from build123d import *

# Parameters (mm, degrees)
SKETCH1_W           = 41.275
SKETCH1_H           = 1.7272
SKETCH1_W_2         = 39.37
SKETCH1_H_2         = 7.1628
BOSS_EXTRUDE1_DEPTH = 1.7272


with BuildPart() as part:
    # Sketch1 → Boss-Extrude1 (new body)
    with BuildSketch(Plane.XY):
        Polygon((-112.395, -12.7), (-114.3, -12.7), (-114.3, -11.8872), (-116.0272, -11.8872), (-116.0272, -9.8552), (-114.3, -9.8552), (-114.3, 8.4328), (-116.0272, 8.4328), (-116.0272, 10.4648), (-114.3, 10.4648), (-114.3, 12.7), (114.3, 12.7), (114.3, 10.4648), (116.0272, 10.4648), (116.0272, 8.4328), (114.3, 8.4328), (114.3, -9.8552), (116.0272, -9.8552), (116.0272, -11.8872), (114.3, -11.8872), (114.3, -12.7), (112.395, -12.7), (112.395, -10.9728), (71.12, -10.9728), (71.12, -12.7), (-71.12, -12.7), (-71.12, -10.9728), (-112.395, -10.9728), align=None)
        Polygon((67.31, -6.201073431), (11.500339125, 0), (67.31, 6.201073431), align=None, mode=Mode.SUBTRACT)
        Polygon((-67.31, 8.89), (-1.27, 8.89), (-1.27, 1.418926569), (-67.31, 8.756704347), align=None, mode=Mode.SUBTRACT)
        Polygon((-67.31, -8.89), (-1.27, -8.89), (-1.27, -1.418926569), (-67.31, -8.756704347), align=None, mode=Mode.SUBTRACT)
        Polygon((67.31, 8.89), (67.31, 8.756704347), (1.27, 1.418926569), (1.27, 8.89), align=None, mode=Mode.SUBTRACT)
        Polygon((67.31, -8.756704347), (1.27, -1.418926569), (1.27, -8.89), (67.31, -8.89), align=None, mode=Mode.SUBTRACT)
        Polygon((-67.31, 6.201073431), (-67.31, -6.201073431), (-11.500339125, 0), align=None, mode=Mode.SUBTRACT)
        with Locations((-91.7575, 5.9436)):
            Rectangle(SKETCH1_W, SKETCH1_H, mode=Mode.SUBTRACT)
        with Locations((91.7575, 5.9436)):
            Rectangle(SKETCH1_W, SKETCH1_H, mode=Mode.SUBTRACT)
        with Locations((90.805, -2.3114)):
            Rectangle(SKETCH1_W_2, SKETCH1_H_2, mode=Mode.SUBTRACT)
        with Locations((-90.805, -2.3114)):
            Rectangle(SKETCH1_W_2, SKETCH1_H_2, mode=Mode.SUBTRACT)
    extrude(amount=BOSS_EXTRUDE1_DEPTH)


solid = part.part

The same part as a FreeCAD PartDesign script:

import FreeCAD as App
import Part
import Sketcher
from FreeCAD import Vector
Q = App.Units.Quantity

doc = App.newDocument("Part")
body = doc.addObject("PartDesign::Body", "Body")

# Sketch on XY plane
sketch1 = body.newObject("Sketcher::SketchObject", "Sketch")
sketch1.AttachmentSupport = (doc.getObject("XY_Plane"), [""])
sketch1.MapMode = "FlatFace"
sketch1.addGeometry([
    Part.LineSegment(Vector(-114.3, -12.7, 0), Vector(-112.39, -12.7, 0)),  # 0
    Part.LineSegment(Vector(-112.39, -12.7, 0), Vector(-112.39, -10.97, 0)),  # 1
    Part.LineSegment(Vector(-112.39, -10.97, 0), Vector(-71.12, -10.97, 0)),  # 2
    Part.LineSegment(Vector(-71.12, -10.97, 0), Vector(-71.12, -12.7, 0)),  # 3
    Part.LineSegment(Vector(-71.12, -12.7, 0), Vector(71.12, -12.7, 0)),  # 4
    Part.LineSegment(Vector(71.12, -12.7, 0), Vector(71.12, -10.97, 0)),  # 5
    Part.LineSegment(Vector(71.12, -10.97, 0), Vector(112.39, -10.97, 0)),  # 6
    Part.LineSegment(Vector(112.39, -10.97, 0), Vector(112.39, -12.7, 0)),  # 7
    Part.LineSegment(Vector(112.39, -12.7, 0), Vector(114.3, -12.7, 0)),  # 8
    Part.LineSegment(Vector(114.3, -12.7, 0), Vector(114.3, -11.89, 0)),  # 9
    Part.LineSegment(Vector(114.3, -11.89, 0), Vector(116.03, -11.89, 0)),  # 10
    Part.LineSegment(Vector(116.03, -11.89, 0), Vector(116.03, -9.86, 0)),  # 11
    Part.LineSegment(Vector(116.03, -9.86, 0), Vector(114.3, -9.86, 0)),  # 12
    Part.LineSegment(Vector(114.3, -9.86, 0), Vector(114.3, 8.43, 0)),  # 13
    Part.LineSegment(Vector(114.3, 8.43, 0), Vector(116.03, 8.43, 0)),  # 14
    Part.LineSegment(Vector(116.03, 8.43, 0), Vector(116.03, 10.46, 0)),  # 15
    Part.LineSegment(Vector(116.03, 10.46, 0), Vector(114.3, 10.46, 0)),  # 16
    Part.LineSegment(Vector(114.3, 10.46, 0), Vector(114.3, 12.7, 0)),  # 17
    Part.LineSegment(Vector(114.3, 12.7, 0), Vector(-114.3, 12.7, 0)),  # 18
    Part.LineSegment(Vector(-114.3, 12.7, 0), Vector(-114.3, 10.46, 0)),  # 19
    Part.LineSegment(Vector(-114.3, 10.46, 0), Vector(-116.03, 10.46, 0)),  # 20
    Part.LineSegment(Vector(-116.03, 10.46, 0), Vector(-116.03, 8.43, 0)),  # 21
    Part.LineSegment(Vector(-116.03, 8.43, 0), Vector(-114.3, 8.43, 0)),  # 22
    Part.LineSegment(Vector(-114.3, 8.43, 0), Vector(-114.3, -9.86, 0)),  # 23
    Part.LineSegment(Vector(-114.3, -9.86, 0), Vector(-116.03, -9.86, 0)),  # 24
    Part.LineSegment(Vector(-116.03, -9.86, 0), Vector(-116.03, -11.89, 0)),  # 25
    Part.LineSegment(Vector(-116.03, -11.89, 0), Vector(-114.3, -11.89, 0)),  # 26
    Part.LineSegment(Vector(-114.3, -11.89, 0), Vector(-114.3, -12.7, 0)),  # 27
    Part.LineSegment(Vector(67.31, -8.76, 0), Vector(67.31, -8.89, 0)),  # 28
    Part.LineSegment(Vector(67.31, -8.89, 0), Vector(1.27, -8.89, 0)),  # 29
    Part.LineSegment(Vector(1.27, -8.89, 0), Vector(1.27, -1.42, 0)),  # 30
    Part.LineSegment(Vector(1.27, -1.42, 0), Vector(67.31, -8.76, 0)),  # 31
    Part.LineSegment(Vector(71.12, -5.89, 0), Vector(71.12, 1.27, 0)),  # 32
    Part.LineSegment(Vector(71.12, 1.27, 0), Vector(110.49, 1.27, 0)),  # 33
    Part.LineSegment(Vector(110.49, 1.27, 0), Vector(110.49, -5.89, 0)),  # 34
    Part.LineSegment(Vector(110.49, -5.89, 0), Vector(71.12, -5.89, 0)),  # 35
    Part.LineSegment(Vector(67.31, -6.2, 0), Vector(11.5, 0, 0)),  # 36
    Part.LineSegment(Vector(11.5, 0, 0), Vector(67.31, 6.2, 0)),  # 37
    Part.LineSegment(Vector(67.31, 6.2, 0), Vector(67.31, -6.2, 0)),  # 38
    Part.LineSegment(Vector(-67.31, -8.89, 0), Vector(-67.31, -8.76, 0)),  # 39
    Part.LineSegment(Vector(-67.31, -8.76, 0), Vector(-1.27, -1.42, 0)),  # 40
    Part.LineSegment(Vector(-1.27, -1.42, 0), Vector(-1.27, -8.89, 0)),  # 41
    Part.LineSegment(Vector(-1.27, -8.89, 0), Vector(-67.31, -8.89, 0)),  # 42
    Part.LineSegment(Vector(-67.31, 6.2, 0), Vector(-11.5, 0, 0)),  # 43
    Part.LineSegment(Vector(-11.5, 0, 0), Vector(-67.31, -6.2, 0)),  # 44
    Part.LineSegment(Vector(-67.31, -6.2, 0), Vector(-67.31, 6.2, 0)),  # 45
    Part.LineSegment(Vector(-110.49, -5.89, 0), Vector(-110.49, 1.27, 0)),  # 46
    Part.LineSegment(Vector(-110.49, 1.27, 0), Vector(-71.12, 1.27, 0)),  # 47
    Part.LineSegment(Vector(-71.12, 1.27, 0), Vector(-71.12, -5.89, 0)),  # 48
    Part.LineSegment(Vector(-71.12, -5.89, 0), Vector(-110.49, -5.89, 0)),  # 49
    Part.LineSegment(Vector(71.12, 5.08, 0), Vector(71.12, 6.81, 0)),  # 50
    Part.LineSegment(Vector(71.12, 6.81, 0), Vector(112.39, 6.81, 0)),  # 51
    Part.LineSegment(Vector(112.39, 6.81, 0), Vector(112.39, 5.08, 0)),  # 52
    Part.LineSegment(Vector(112.39, 5.08, 0), Vector(71.12, 5.08, 0)),  # 53
    Part.LineSegment(Vector(67.31, 8.89, 0), Vector(67.31, 8.76, 0)),  # 54
    Part.LineSegment(Vector(67.31, 8.76, 0), Vector(1.27, 1.42, 0)),  # 55
    Part.LineSegment(Vector(1.27, 1.42, 0), Vector(1.27, 8.89, 0)),  # 56
    Part.LineSegment(Vector(1.27, 8.89, 0), Vector(67.31, 8.89, 0)),  # 57
    Part.LineSegment(Vector(-67.31, 8.89, 0), Vector(-1.27, 8.89, 0)),  # 58
    Part.LineSegment(Vector(-1.27, 8.89, 0), Vector(-1.27, 1.42, 0)),  # 59
    Part.LineSegment(Vector(-1.27, 1.42, 0), Vector(-67.31, 8.76, 0)),  # 60
    Part.LineSegment(Vector(-67.31, 8.76, 0), Vector(-67.31, 8.89, 0)),  # 61
    Part.LineSegment(Vector(-112.39, 5.08, 0), Vector(-112.39, 6.81, 0)),  # 62
    Part.LineSegment(Vector(-112.39, 6.81, 0), Vector(-71.12, 6.81, 0)),  # 63
    Part.LineSegment(Vector(-71.12, 6.81, 0), Vector(-71.12, 5.08, 0)),  # 64
    Part.LineSegment(Vector(-71.12, 5.08, 0), Vector(-112.39, 5.08, 0)),  # 65
], False)
sketch1.addConstraint([
    Sketcher.Constraint("Coincident", 0, 2, 1, 1),
    Sketcher.Constraint("Coincident", 1, 2, 2, 1),
    Sketcher.Constraint("Coincident", 2, 2, 3, 1),
    Sketcher.Constraint("Coincident", 3, 2, 4, 1),
    Sketcher.Constraint("Coincident", 4, 2, 5, 1),
    Sketcher.Constraint("Coincident", 5, 2, 6, 1),
    Sketcher.Constraint("Coincident", 6, 2, 7, 1),
    Sketcher.Constraint("Coincident", 7, 2, 8, 1),
    Sketcher.Constraint("Coincident", 8, 2, 9, 1),
    Sketcher.Constraint("Coincident", 9, 2, 10, 1),
    Sketcher.Constraint("Coincident", 10, 2, 11, 1),
    Sketcher.Constraint("Coincident", 11, 2, 12, 1),
    Sketcher.Constraint("Coincident", 12, 2, 13, 1),
    Sketcher.Constraint("Coincident", 13, 2, 14, 1),
    Sketcher.Constraint("Coincident", 14, 2, 15, 1),
    Sketcher.Constraint("Coincident", 15, 2, 16, 1),
    Sketcher.Constraint("Coincident", 16, 2, 17, 1),
    Sketcher.Constraint("Coincident", 17, 2, 18, 1),
    Sketcher.Constraint("Coincident", 18, 2, 19, 1),
    Sketcher.Constraint("Coincident", 19, 2, 20, 1),
    Sketcher.Constraint("Coincident", 20, 2, 21, 1),
    Sketcher.Constraint("Coincident", 21, 2, 22, 1),
    Sketcher.Constraint("Coincident", 22, 2, 23, 1),
    Sketcher.Constraint("Coincident", 23, 2, 24, 1),
    Sketcher.Constraint("Coincident", 24, 2, 25, 1),
    Sketcher.Constraint("Coincident", 25, 2, 26, 1),
    Sketcher.Constraint("Coincident", 26, 2, 27, 1),
    Sketcher.Constraint("Coincident", 27, 2, 0, 1),
    Sketcher.Constraint("Coincident", 28, 2, 29, 1),
    Sketcher.Constraint("Coincident", 29, 2, 30, 1),
    Sketcher.Constraint("Coincident", 30, 2, 31, 1),
    Sketcher.Constraint("Coincident", 31, 2, 28, 1),
    Sketcher.Constraint("Coincident", 32, 2, 33, 1),
    Sketcher.Constraint("Coincident", 33, 2, 34, 1),
    Sketcher.Constraint("Coincident", 34, 2, 35, 1),
    Sketcher.Constraint("Coincident", 35, 2, 32, 1),
    Sketcher.Constraint("Coincident", 36, 2, 37, 1),
    Sketcher.Constraint("Coincident", 37, 2, 38, 1),
    Sketcher.Constraint("Coincident", 38, 2, 36, 1),
    Sketcher.Constraint("Coincident", 39, 2, 40, 1),
    Sketcher.Constraint("Coincident", 40, 2, 41, 1),
    Sketcher.Constraint("Coincident", 41, 2, 42, 1),
    Sketcher.Constraint("Coincident", 42, 2, 39, 1),
    Sketcher.Constraint("Coincident", 43, 2, 44, 1),
    Sketcher.Constraint("Coincident", 44, 2, 45, 1),
    Sketcher.Constraint("Coincident", 45, 2, 43, 1),
    Sketcher.Constraint("Coincident", 46, 2, 47, 1),
    Sketcher.Constraint("Coincident", 47, 2, 48, 1),
    Sketcher.Constraint("Coincident", 48, 2, 49, 1),
    Sketcher.Constraint("Coincident", 49, 2, 46, 1),
    Sketcher.Constraint("Coincident", 50, 2, 51, 1),
    Sketcher.Constraint("Coincident", 51, 2, 52, 1),
    Sketcher.Constraint("Coincident", 52, 2, 53, 1),
    Sketcher.Constraint("Coincident", 53, 2, 50, 1),
    Sketcher.Constraint("Coincident", 54, 2, 55, 1),
    Sketcher.Constraint("Coincident", 55, 2, 56, 1),
    Sketcher.Constraint("Coincident", 56, 2, 57, 1),
    Sketcher.Constraint("Coincident", 57, 2, 54, 1),
    Sketcher.Constraint("Coincident", 58, 2, 59, 1),
    Sketcher.Constraint("Coincident", 59, 2, 60, 1),
    Sketcher.Constraint("Coincident", 60, 2, 61, 1),
    Sketcher.Constraint("Coincident", 61, 2, 58, 1),
    Sketcher.Constraint("Coincident", 62, 2, 63, 1),
    Sketcher.Constraint("Coincident", 63, 2, 64, 1),
    Sketcher.Constraint("Coincident", 64, 2, 65, 1),
    Sketcher.Constraint("Coincident", 65, 2, 62, 1),
    Sketcher.Constraint("Horizontal", 0),
    Sketcher.Constraint("Vertical", 1),
    Sketcher.Constraint("Horizontal", 2),
    Sketcher.Constraint("Vertical", 3),
    Sketcher.Constraint("Horizontal", 4),
    Sketcher.Constraint("Vertical", 5),
    Sketcher.Constraint("Horizontal", 6),
    Sketcher.Constraint("Vertical", 7),
    Sketcher.Constraint("Horizontal", 8),
    Sketcher.Constraint("Vertical", 9),
    Sketcher.Constraint("Horizontal", 10),
    Sketcher.Constraint("Vertical", 11),
    Sketcher.Constraint("Horizontal", 12),
    Sketcher.Constraint("Vertical", 13),
    Sketcher.Constraint("Horizontal", 14),
    Sketcher.Constraint("Vertical", 15),
    Sketcher.Constraint("Horizontal", 16),
    Sketcher.Constraint("Vertical", 17),
    Sketcher.Constraint("Horizontal", 18),
    Sketcher.Constraint("Vertical", 19),
    Sketcher.Constraint("Horizontal", 20),
    Sketcher.Constraint("Vertical", 21),
    Sketcher.Constraint("Horizontal", 22),
    Sketcher.Constraint("Vertical", 23),
    Sketcher.Constraint("Horizontal", 24),
    Sketcher.Constraint("Vertical", 25),
    Sketcher.Constraint("Horizontal", 26),
    Sketcher.Constraint("Vertical", 27),
    Sketcher.Constraint("Vertical", 28),
    Sketcher.Constraint("Horizontal", 29),
    Sketcher.Constraint("Vertical", 30),
    Sketcher.Constraint("Vertical", 32),
    Sketcher.Constraint("Horizontal", 33),
    Sketcher.Constraint("Vertical", 34),
    Sketcher.Constraint("Horizontal", 35),
    Sketcher.Constraint("Vertical", 38),
    Sketcher.Constraint("Vertical", 39),
    Sketcher.Constraint("Vertical", 41),
    Sketcher.Constraint("Horizontal", 42),
    Sketcher.Constraint("Vertical", 45),
    Sketcher.Constraint("Vertical", 46),
    Sketcher.Constraint("Horizontal", 47),
    Sketcher.Constraint("Vertical", 48),
    Sketcher.Constraint("Horizontal", 49),
    Sketcher.Constraint("Vertical", 50),
    Sketcher.Constraint("Horizontal", 51),
    Sketcher.Constraint("Vertical", 52),
    Sketcher.Constraint("Horizontal", 53),
    Sketcher.Constraint("Vertical", 54),
    Sketcher.Constraint("Vertical", 56),
    Sketcher.Constraint("Horizontal", 57),
    Sketcher.Constraint("Horizontal", 58),
    Sketcher.Constraint("Vertical", 59),
    Sketcher.Constraint("Vertical", 61),
    Sketcher.Constraint("Vertical", 62),
    Sketcher.Constraint("Horizontal", 63),
    Sketcher.Constraint("Vertical", 64),
    Sketcher.Constraint("Horizontal", 65),
    Sketcher.Constraint("Symmetric", 8, 2, 18, 2, -1, 1),
    Sketcher.Constraint("Symmetric", 17, 2, 27, 2, -1, 1),
    Sketcher.Constraint("Symmetric", 36, 2, 43, 2, -1, 1),
    Sketcher.Constraint("Symmetric", 37, 2, 44, 2, -1, 1),
    Sketcher.Constraint("Symmetric", 39, 2, 54, 2, -1, 1),
    Sketcher.Constraint("Symmetric", 40, 2, 55, 2, -1, 1),
    Sketcher.Constraint("Symmetric", 29, 2, 58, 2, -1, 1),
    Sketcher.Constraint("Symmetric", 31, 2, 60, 2, -1, 1),
    Sketcher.Constraint("Symmetric", 2, 2, 5, 2, -2),
    Sketcher.Constraint("Symmetric", 16, 2, 19, 2, -2),
    Sketcher.Constraint("Symmetric", 14, 2, 21, 2, -2),
    Sketcher.Constraint("Symmetric", 12, 2, 23, 2, -2),
    Sketcher.Constraint("Symmetric", 10, 2, 25, 2, -2),
    Sketcher.Constraint("Symmetric", 31, 2, 39, 2, -2),
    Sketcher.Constraint("Symmetric", 30, 2, 40, 2, -2),
    Sketcher.Constraint("Symmetric", 33, 2, 46, 2, -2),
    Sketcher.Constraint("Symmetric", 35, 2, 48, 2, -2),
    Sketcher.Constraint("Symmetric", 51, 2, 62, 2, -2),
    Sketcher.Constraint("Symmetric", 53, 2, 64, 2, -2),
    Sketcher.Constraint("PointOnObject", 36, 2, -1),
    Sketcher.Constraint("Parallel", 31, 36),
    Sketcher.Constraint("Parallel", 37, 40),
    Sketcher.Constraint("Parallel", 36, 43),
    Sketcher.Constraint("Parallel", 43, 60),
    Sketcher.Constraint("Horizontal", 0, 2, 3, 2),
    Sketcher.Constraint("Horizontal", 29, 2, 41, 2),
    Sketcher.Constraint("Horizontal", 57, 2, 58, 2),
    Sketcher.Constraint("Vertical", 9, 2, 12, 2),
    Sketcher.Constraint("Vertical", 11, 2, 14, 2),
    Sketcher.Constraint("Vertical", 5, 2, 32, 2),
    Sketcher.Constraint("Vertical", 31, 2, 37, 2),
    Sketcher.Constraint("Vertical", 35, 2, 50, 2),
    Sketcher.Constraint("Vertical", 7, 2, 51, 2),
    Sketcher.Constraint("Vertical", 1, 2, 62, 2),
    Sketcher.Constraint("Equal", 26, 1),
    Sketcher.Constraint("Equal", 11, 15),
    Sketcher.Constraint("Equal", 7, 50),
    Sketcher.Constraint("DistanceX", 18, 2, 18, 1, Q("9 in")),
    Sketcher.Constraint("DistanceX", 4, 1, 4, 2, Q("5.6 in")),
    Sketcher.Constraint("DistanceX", 29, 2, 29, 1, Q("2.6 in")),
    Sketcher.Constraint("DistanceX", 33, 1, 33, 2, Q("1.55 in")),
    Sketcher.Constraint("DistanceY", 11, 1, 11, 2, Q("0.08 in")),
    Sketcher.Constraint("DistanceY", 13, 1, 13, 2, Q("0.72 in")),
    Sketcher.Constraint("DistanceY", 0, 2, -1, 1, Q("0.5 in")),
    Sketcher.Constraint("DistanceY", -1, 1, 52, 2, Q("0.2 in")),
    Sketcher.Constraint("DistanceX", 0, 1, 0, 2, Q("0.075 in")),
    Sketcher.Constraint("DistanceX", 10, 1, 10, 2, Q("0.068 in")),
    Sketcher.Constraint("DistanceY", 9, 1, 9, 2, Q("0.032 in")),
    Sketcher.Constraint("DistanceY", 32, 1, 32, 2, Q("0.282 in")),
    Sketcher.Constraint("DistanceX", -1, 1, 28, 2, Q("2.65 in")),
    Sketcher.Constraint("DistanceY", 28, 2, -1, 1, Q("0.35 in")),
    Sketcher.Constraint("DistanceY", -1, 1, 32, 2, Q("0.05 in")),
    Sketcher.Constraint("Distance", 31, Q("2.6160002 in")),
    Sketcher.Constraint("Distance", 36, 56.153108),
    Sketcher.Constraint("DistanceY", 28, 2, 28, 1, 0.133296),
])
pad1 = body.newObject("PartDesign::Pad", "Pad")
pad1.Profile = sketch1
pad1.Length = Q("0.068 in")

doc.recompute()
